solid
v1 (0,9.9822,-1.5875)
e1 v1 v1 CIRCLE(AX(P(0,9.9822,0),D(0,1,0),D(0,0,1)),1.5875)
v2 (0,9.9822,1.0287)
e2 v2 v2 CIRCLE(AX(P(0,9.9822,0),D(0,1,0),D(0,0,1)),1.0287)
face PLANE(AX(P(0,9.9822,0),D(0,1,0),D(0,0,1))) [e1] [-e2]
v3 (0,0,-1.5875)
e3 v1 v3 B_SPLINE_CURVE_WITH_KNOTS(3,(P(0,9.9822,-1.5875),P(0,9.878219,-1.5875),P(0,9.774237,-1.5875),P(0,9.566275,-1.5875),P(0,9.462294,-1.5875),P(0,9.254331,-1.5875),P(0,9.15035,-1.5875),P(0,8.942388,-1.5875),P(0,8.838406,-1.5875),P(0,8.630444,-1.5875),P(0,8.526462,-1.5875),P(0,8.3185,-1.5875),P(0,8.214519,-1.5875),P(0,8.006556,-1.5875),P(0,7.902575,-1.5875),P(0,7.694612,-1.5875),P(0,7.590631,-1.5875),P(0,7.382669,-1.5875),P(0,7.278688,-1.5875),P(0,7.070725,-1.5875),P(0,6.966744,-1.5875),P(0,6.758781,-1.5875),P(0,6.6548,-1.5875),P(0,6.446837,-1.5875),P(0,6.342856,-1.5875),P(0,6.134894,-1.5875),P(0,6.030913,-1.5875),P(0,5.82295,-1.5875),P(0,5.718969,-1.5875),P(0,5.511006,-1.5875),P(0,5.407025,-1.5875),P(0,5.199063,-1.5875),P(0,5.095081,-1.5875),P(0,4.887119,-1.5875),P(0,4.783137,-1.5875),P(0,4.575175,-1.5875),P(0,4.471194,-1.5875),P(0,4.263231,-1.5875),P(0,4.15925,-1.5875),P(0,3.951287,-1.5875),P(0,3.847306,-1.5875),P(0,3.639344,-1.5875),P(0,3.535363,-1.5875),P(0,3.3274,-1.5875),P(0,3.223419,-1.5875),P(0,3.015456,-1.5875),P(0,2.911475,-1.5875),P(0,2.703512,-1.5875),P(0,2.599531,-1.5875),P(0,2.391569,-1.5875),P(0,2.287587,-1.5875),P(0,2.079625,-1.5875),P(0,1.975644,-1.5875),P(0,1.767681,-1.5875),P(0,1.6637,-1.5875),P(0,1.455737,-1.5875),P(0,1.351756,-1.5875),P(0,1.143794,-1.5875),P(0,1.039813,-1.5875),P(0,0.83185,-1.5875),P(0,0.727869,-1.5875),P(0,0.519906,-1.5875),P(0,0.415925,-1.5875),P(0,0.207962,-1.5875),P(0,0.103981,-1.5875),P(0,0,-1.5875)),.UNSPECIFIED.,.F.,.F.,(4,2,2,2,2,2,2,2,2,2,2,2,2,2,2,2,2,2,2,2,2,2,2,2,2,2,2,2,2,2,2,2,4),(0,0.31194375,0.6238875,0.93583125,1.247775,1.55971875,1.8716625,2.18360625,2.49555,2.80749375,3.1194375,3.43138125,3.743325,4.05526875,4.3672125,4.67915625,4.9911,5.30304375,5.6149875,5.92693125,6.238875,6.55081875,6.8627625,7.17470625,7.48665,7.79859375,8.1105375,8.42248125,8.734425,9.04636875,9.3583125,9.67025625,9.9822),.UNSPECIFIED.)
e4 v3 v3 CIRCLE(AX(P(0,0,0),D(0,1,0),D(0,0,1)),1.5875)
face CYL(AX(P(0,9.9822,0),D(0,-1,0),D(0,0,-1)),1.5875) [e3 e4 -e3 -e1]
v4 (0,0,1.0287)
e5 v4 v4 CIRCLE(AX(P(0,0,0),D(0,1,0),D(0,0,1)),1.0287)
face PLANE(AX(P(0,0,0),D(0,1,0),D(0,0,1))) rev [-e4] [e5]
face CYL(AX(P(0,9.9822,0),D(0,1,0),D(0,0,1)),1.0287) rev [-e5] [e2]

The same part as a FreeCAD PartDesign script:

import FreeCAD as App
import Part
import Sketcher
from FreeCAD import Vector
Q = App.Units.Quantity

doc = App.newDocument("Part")
body = doc.addObject("PartDesign::Body", "Body")

# Sketch on XZ plane
sketch1 = body.newObject("Sketcher::SketchObject", "Sketch")
sketch1.AttachmentSupport = (doc.getObject("XZ_Plane"), [""])
sketch1.MapMode = "FlatFace"
sketch1.addGeometry(Part.Circle(Vector(0, 0, 0), Vector(0, 0, 1), 1.6), False)
sketch1.addConstraint([
    Sketcher.Constraint("Coincident", 0, 3, -1, 1),
    Sketcher.Constraint("Diameter", 0, Q("0.125 in")),
])
pad1 = body.newObject("PartDesign::Pad", "Pad")
pad1.Profile = sketch1
pad1.Length = Q("0.393 in")
pad1.Reversed = True

# Sketch on XZ plane
sketch2 = body.newObject("Sketcher::SketchObject", "Sketch001")
sketch2.AttachmentSupport = (doc.getObject("XZ_Plane"), [""])
sketch2.MapMode = "FlatFace"
sketch2.AttachmentOffset = App.Placement(Vector(0, 0, -0.393 * 25.4), App.Rotation())
sketch2.addGeometry(Part.Circle(Vector(0, 0, 0), Vector(0, 0, 1), 1), False)
sketch2.addConstraint([
    Sketcher.Constraint("Coincident", 0, 3, -1, 1),
    Sketcher.Constraint("Diameter", 0, Q("0.081 in")),
])
doc.recompute()
hole = body.newObject("PartDesign::Hole", "Hole")
hole.Profile = sketch2
hole.ThreadType = "None"
hole.Diameter = Q("0.081 in")
hole.DepthType = "ThroughAll"
hole.Reversed = True

doc.recompute()
